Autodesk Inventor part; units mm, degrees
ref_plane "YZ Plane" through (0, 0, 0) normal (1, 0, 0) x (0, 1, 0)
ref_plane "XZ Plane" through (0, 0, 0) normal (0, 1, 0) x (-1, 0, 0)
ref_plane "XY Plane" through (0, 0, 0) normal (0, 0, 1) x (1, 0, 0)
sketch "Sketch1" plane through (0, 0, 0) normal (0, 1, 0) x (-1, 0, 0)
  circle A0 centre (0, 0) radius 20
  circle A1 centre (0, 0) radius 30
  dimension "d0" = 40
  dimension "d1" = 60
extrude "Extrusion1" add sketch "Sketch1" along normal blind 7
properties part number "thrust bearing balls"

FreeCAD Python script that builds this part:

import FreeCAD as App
import Part
import Sketcher

V = App.Vector
Q = App.Units.Quantity

doc = App.newDocument("Part")
params = doc.addObject("Spreadsheet::Sheet", "Params")
for row, (alias, value) in enumerate([
    ("sketch1_diameter", "60 mm"),
    ("sketch1_diameter2", "40 mm"),
    ("pad1_length", "7 mm"),
], start=1):
    params.set(f"A{row}", alias)
    params.set(f"B{row}", "=" + value)
    params.setAlias(f"B{row}", alias)

body = doc.addObject("PartDesign::Body", "Body")

sketch1 = body.newObject("Sketcher::SketchObject", "Sketch")
sketch1.AttachmentSupport = (doc.getObject("XZ_Plane"), [""])
sketch1.MapMode = "FlatFace"
sketch1.addGeometry(Part.Circle(V(0, 0, 0), V(0, 0, 1), 30), False)
sketch1.addGeometry(Part.Circle(V(0, 0, 0), V(0, 0, 1), 20), False)
sketch1.addConstraint(Sketcher.Constraint("Coincident", 0, 3, -1, 1))
sketch1.addConstraint(Sketcher.Constraint("Coincident", 1, 3, -1, 1))
sketch1.addConstraint(Sketcher.Constraint("Diameter", 0, Q("60 mm")))
sketch1.addConstraint(Sketcher.Constraint("Diameter", 1, Q("40 mm")))
sketch1.setExpression("Constraints[2]", "Params.sketch1_diameter")
sketch1.setExpression("Constraints[3]", "Params.sketch1_diameter2")
pad1 = body.newObject("PartDesign::Pad", "Pad")
pad1.Profile = sketch1
pad1.setExpression("Length", "Params.pad1_length")
pad1.Reversed = True

doc.recompute()
